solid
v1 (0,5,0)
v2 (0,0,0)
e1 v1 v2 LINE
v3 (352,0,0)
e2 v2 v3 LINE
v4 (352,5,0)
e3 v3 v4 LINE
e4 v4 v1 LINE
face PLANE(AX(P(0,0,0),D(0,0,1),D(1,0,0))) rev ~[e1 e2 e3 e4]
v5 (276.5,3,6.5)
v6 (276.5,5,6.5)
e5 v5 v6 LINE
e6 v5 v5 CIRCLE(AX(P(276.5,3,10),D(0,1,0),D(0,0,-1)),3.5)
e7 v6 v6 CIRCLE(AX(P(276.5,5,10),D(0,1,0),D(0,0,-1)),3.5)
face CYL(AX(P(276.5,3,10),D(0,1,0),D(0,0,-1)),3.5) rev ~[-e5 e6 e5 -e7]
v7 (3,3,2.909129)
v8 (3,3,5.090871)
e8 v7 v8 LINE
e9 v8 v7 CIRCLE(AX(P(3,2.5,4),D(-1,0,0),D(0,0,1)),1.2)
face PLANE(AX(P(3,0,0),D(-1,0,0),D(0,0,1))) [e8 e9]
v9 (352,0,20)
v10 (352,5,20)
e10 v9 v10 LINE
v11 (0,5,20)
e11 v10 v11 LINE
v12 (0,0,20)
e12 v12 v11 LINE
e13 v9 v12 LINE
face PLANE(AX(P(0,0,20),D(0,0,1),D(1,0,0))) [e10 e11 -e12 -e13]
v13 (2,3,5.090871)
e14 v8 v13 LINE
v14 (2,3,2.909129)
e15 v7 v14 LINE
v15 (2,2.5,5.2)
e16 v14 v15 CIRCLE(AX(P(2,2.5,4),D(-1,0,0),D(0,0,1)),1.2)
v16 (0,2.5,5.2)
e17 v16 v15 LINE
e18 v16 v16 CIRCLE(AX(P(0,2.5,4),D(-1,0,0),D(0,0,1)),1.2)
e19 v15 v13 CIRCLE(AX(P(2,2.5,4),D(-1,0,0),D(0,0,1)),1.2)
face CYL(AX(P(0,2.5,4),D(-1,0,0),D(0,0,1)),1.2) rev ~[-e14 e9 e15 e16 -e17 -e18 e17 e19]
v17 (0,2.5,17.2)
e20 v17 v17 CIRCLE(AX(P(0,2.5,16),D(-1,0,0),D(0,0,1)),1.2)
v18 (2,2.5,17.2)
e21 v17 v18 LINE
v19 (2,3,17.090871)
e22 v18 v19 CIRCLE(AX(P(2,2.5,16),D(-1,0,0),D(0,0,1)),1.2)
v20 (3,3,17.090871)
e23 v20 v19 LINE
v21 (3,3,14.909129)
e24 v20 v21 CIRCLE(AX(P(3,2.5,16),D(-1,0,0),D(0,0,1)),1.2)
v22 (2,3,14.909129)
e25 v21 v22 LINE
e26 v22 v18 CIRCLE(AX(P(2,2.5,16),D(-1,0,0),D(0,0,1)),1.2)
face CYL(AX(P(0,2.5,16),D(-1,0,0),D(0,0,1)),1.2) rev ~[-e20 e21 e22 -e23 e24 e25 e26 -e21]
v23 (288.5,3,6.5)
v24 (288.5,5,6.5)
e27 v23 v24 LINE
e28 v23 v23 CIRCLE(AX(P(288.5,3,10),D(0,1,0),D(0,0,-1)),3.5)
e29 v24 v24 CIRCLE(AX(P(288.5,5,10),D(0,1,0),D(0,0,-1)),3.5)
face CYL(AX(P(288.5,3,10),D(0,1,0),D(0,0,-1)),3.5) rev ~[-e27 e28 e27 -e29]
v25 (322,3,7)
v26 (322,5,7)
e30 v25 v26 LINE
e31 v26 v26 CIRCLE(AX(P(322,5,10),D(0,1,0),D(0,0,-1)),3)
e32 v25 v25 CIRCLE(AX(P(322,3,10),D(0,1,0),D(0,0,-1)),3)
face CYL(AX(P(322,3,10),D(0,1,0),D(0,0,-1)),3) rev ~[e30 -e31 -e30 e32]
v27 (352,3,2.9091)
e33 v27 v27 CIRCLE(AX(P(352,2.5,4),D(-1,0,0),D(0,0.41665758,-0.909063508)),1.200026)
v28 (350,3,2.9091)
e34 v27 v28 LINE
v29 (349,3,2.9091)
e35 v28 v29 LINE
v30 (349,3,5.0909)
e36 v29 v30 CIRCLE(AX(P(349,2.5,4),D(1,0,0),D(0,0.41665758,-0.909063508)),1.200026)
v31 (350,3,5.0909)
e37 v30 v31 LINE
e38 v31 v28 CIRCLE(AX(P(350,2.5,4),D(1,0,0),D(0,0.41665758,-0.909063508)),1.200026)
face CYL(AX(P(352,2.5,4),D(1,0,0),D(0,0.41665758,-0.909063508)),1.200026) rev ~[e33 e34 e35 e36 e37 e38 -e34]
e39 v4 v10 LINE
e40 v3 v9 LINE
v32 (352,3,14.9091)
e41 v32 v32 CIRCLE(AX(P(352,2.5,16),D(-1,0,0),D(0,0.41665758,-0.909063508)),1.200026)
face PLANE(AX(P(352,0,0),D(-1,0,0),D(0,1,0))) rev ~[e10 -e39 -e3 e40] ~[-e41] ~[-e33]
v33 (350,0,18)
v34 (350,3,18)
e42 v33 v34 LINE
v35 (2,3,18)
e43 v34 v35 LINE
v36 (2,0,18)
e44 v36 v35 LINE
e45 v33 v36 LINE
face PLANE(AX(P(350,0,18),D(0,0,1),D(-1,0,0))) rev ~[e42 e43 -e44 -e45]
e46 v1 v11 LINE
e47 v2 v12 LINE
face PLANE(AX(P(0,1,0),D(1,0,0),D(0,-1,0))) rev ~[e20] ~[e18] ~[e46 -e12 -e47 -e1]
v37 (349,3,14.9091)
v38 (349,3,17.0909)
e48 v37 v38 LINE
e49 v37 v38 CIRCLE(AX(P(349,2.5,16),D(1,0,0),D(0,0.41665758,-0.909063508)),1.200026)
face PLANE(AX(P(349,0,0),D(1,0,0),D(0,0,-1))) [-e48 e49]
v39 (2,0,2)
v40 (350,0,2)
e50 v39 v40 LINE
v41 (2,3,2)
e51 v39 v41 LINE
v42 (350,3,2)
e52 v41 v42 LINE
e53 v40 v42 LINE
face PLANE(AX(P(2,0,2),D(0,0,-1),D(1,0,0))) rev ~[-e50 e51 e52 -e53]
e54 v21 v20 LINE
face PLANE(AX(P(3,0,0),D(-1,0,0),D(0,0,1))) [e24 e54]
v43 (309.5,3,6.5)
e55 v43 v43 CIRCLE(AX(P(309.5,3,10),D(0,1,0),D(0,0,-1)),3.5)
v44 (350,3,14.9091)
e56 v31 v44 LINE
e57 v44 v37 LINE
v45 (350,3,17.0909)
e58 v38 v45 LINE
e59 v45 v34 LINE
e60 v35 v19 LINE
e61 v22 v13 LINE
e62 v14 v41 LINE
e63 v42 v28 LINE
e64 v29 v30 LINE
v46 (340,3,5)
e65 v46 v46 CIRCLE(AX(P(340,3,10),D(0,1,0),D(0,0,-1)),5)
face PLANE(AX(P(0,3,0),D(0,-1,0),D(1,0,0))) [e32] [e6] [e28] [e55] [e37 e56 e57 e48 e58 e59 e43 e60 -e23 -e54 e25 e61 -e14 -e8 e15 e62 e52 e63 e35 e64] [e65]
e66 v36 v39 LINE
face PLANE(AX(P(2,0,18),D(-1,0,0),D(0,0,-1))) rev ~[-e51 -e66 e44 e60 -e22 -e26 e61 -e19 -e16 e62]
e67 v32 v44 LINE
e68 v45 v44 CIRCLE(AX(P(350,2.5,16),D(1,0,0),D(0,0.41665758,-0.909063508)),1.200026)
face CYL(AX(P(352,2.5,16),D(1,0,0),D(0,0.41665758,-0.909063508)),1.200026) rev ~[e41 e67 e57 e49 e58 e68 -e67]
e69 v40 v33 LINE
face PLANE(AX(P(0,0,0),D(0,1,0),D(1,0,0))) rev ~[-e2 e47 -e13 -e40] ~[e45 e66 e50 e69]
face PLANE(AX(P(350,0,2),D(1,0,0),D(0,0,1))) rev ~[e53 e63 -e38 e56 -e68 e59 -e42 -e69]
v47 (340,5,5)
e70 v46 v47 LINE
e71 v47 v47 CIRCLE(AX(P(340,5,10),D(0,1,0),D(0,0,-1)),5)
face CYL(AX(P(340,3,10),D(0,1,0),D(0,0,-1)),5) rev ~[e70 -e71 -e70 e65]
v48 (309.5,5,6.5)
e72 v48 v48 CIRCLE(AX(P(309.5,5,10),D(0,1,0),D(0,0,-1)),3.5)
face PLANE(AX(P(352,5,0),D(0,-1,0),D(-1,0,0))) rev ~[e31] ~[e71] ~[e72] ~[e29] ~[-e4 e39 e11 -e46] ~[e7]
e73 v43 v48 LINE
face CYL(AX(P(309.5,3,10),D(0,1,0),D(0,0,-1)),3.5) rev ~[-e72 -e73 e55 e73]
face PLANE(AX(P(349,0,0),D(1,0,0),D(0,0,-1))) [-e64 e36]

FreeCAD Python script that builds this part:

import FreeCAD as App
import Part
import Sketcher
from FreeCAD import Vector


def add_polygon(sketch, points):
    """Adds a closed chain of lines whose ends are joined by coincident constraints."""
    first, n = sketch.GeometryCount, len(points)
    for a, b in zip(points, points[1:] + points[:1]):
        sketch.addGeometry(Part.LineSegment(App.Vector(*a, 0), App.Vector(*b, 0)), False)
    for i in range(n):
        sketch.addConstraint(Sketcher.Constraint("Coincident", first + i, 2, first + (i + 1) % n, 1))

doc = App.newDocument("Part")
body = doc.addObject("PartDesign::Body", "Body")

# Sketch on XY plane
sketch1 = doc.addObject("Sketcher::SketchObject", "Sketch")
body.addObject(sketch1)
sketch1.AttachmentSupport = (doc.XY_Plane, [""])
sketch1.MapMode = "FlatFace"
add_polygon(sketch1, [(0, 5), (0, 0), (352, 0), (352, 5)])  # lines 0-3
sketch1.addConstraint(Sketcher.Constraint("Vertical", 0))
sketch1.addConstraint(Sketcher.Constraint("Horizontal", 1))
sketch1.addConstraint(Sketcher.Constraint("Vertical", 2))
sketch1.addConstraint(Sketcher.Constraint("Horizontal", 3))
sketch1.addConstraint(Sketcher.Constraint("Coincident", 0, 2, -1, 1))
sketch1.addConstraint(Sketcher.Constraint("DistanceX", 1, 1, 1, 2, 352.0))
sketch1.addConstraint(Sketcher.Constraint("DistanceY", 0, 2, 0, 1, 5.0))
pad1 = doc.addObject("PartDesign::Pad", "Pad")
body.addObject(pad1)
pad1.Profile = sketch1
pad1.Length = 20

# Sketch on YZ plane
sketch2 = doc.addObject("Sketcher::SketchObject", "Sketch001")
body.addObject(sketch2)
sketch2.AttachmentSupport = (doc.YZ_Plane, [""])
sketch2.MapMode = "FlatFace"
sketch2.addGeometry(Part.Circle(Vector(2.5, 4, 0), Vector(0, 0, 1), 1.2), False)
sketch2.addGeometry(Part.Circle(Vector(2.5, 16, 0), Vector(0, 0, 1), 1.2), False)
sketch2.addConstraint(Sketcher.Constraint("Equal", 0, 1))
sketch2.addConstraint(Sketcher.Constraint("Vertical", 0, 3, 1, 3))
sketch2.addConstraint(Sketcher.Constraint("Diameter", 0, 2.4))
sketch2.addConstraint(Sketcher.Constraint("DistanceY", -1, 1, 0, 3, 4.0))
sketch2.addConstraint(Sketcher.Constraint("DistanceX", -1, 1, 0, 3, 2.5))
sketch2.addConstraint(Sketcher.Constraint("DistanceY", -1, 1, 1, 3, 16.0))
pocket1 = doc.addObject("PartDesign::Pocket", "Pocket")
body.addObject(pocket1)
pocket1.Profile = sketch2
pocket1.Length = 3
pocket1.Reversed = True

# Sketch on XZ plane
sketch3 = doc.addObject("Sketcher::SketchObject", "Sketch002")
body.addObject(sketch3)
sketch3.AttachmentSupport = (doc.XZ_Plane, [""])
sketch3.MapMode = "FlatFace"
add_polygon(sketch3, [(2, 18), (2, 2), (350, 2), (350, 18)])  # lines 0-3
sketch3.addConstraint(Sketcher.Constraint("Vertical", 0))
sketch3.addConstraint(Sketcher.Constraint("Horizontal", 1))
sketch3.addConstraint(Sketcher.Constraint("Vertical", 2))
sketch3.addConstraint(Sketcher.Constraint("Horizontal", 3))
sketch3.addConstraint(Sketcher.Constraint("DistanceX", -1, 1, 0, 2, 2.0))
sketch3.addConstraint(Sketcher.Constraint("DistanceY", -1, 1, 0, 2, 2.0))
sketch3.addConstraint(Sketcher.Constraint("DistanceX", 1, 1, 1, 2, 348.0))
sketch3.addConstraint(Sketcher.Constraint("DistanceY", 0, 2, 0, 1, 16.0))
pocket2 = doc.addObject("PartDesign::Pocket", "Pocket001")
body.addObject(pocket2)
pocket2.Profile = sketch3
pocket2.Length = 3

# Sketch on XZ plane
sketch4 = doc.addObject("Sketcher::SketchObject", "Sketch003")
body.addObject(sketch4)
sketch4.AttachmentSupport = (doc.XZ_Plane, [""])
sketch4.MapMode = "FlatFace"
sketch4.AttachmentOffset = App.Placement(Vector(0, 0, -3), App.Rotation())
sketch4.addGeometry(Part.Circle(Vector(340, 10, 0), Vector(0, 0, 1), 5), False)
sketch4.addConstraint(Sketcher.Constraint("Diameter", 0, 10.0))
sketch4.addConstraint(Sketcher.Constraint("DistanceX", -1, 1, 0, 3, 340.0))
sketch4.addConstraint(Sketcher.Constraint("DistanceY", -1, 1, 0, 3, 10.0))
doc.recompute()
hole = doc.addObject("PartDesign::Hole", "Hole")
body.addObject(hole)
hole.Profile = sketch4
hole.ThreadType = "None"
hole.Diameter = 10
hole.DepthType = "ThroughAll"

# Sketch on XZ plane
sketch5 = doc.addObject("Sketcher::SketchObject", "Sketch004")
body.addObject(sketch5)
sketch5.AttachmentSupport = (doc.XZ_Plane, [""])
sketch5.MapMode = "FlatFace"
sketch5.AttachmentOffset = App.Placement(Vector(0, 0, -3), App.Rotation())
sketch5.addGeometry(Part.Circle(Vector(322, 10, 0), Vector(0, 0, 1), 3), False)
sketch5.addConstraint(Sketcher.Constraint("Diameter", 0, 6.0))
sketch5.addConstraint(Sketcher.Constraint("DistanceX", -1, 1, 0, 3, 322.0))
sketch5.addConstraint(Sketcher.Constraint("DistanceY", -1, 1, 0, 3, 10.0))
doc.recompute()
hole2 = doc.addObject("PartDesign::Hole", "Hole001")
body.addObject(hole2)
hole2.Profile = sketch5
hole2.ThreadType = "None"
hole2.Diameter = 6
hole2.DepthType = "ThroughAll"

# Sketch on XZ plane
sketch6 = doc.addObject("Sketcher::SketchObject", "Sketch005")
body.addObject(sketch6)
sketch6.AttachmentSupport = (doc.XZ_Plane, [""])
sketch6.MapMode = "FlatFace"
sketch6.AttachmentOffset = App.Placement(Vector(0, 0, -3), App.Rotation())
sketch6.addGeometry(Part.Circle(Vector(309.5, 10, 0), Vector(0, 0, 1), 3.5), False)
sketch6.addConstraint(Sketcher.Constraint("Diameter", 0, 7.0))
sketch6.addConstraint(Sketcher.Constraint("DistanceY", -1, 1, 0, 3, 10.0))
sketch6.addConstraint(Sketcher.Constraint("DistanceX", -1, 1, 0, 3, 309.5))
doc.recompute()
hole3 = doc.addObject("PartDesign::Hole", "Hole002")
body.addObject(hole3)
hole3.Profile = sketch6
hole3.ThreadType = "None"
hole3.Diameter = 7
hole3.DepthType = "ThroughAll"

# Sketch on XZ plane
sketch7 = doc.addObject("Sketcher::SketchObject", "Sketch006")
body.addObject(sketch7)
sketch7.AttachmentSupport = (doc.XZ_Plane, [""])
sketch7.MapMode = "FlatFace"
sketch7.AttachmentOffset = App.Placement(Vector(0, 0, -3), App.Rotation())
sketch7.addGeometry(Part.Circle(Vector(288.5, 10, 0), Vector(0, 0, 1), 3.5), False)
sketch7.addConstraint(Sketcher.Constraint("Diameter", 0, 7.0))
sketch7.addConstraint(Sketcher.Constraint("DistanceY", -1, 1, 0, 3, 10.0))
sketch7.addConstraint(Sketcher.Constraint("DistanceX", -1, 1, 0, 3, 288.5))
doc.recompute()
hole4 = doc.addObject("PartDesign::Hole", "Hole003")
body.addObject(hole4)
hole4.Profile = sketch7
hole4.ThreadType = "None"
hole4.Diameter = 7
hole4.DepthType = "ThroughAll"

# Sketch on XZ plane
sketch8 = doc.addObject("Sketcher::SketchObject", "Sketch007")
body.addObject(sketch8)
sketch8.AttachmentSupport = (doc.XZ_Plane, [""])
sketch8.MapMode = "FlatFace"
sketch8.AttachmentOffset = App.Placement(Vector(0, 0, -3), App.Rotation())
sketch8.addGeometry(Part.Circle(Vector(276.5, 10, 0), Vector(0, 0, 1), 3.5), False)
sketch8.addConstraint(Sketcher.Constraint("Diameter", 0, 7.0))
sketch8.addConstraint(Sketcher.Constraint("DistanceY", -1, 1, 0, 3, 10.0))
sketch8.addConstraint(Sketcher.Constraint("DistanceX", -1, 1, 0, 3, 276.5))
doc.recompute()
hole5 = doc.addObject("PartDesign::Hole", "Hole004")
body.addObject(hole5)
hole5.Profile = sketch8
hole5.ThreadType = "None"
hole5.Diameter = 7
hole5.DepthType = "ThroughAll"

# Sketch on YZ plane
sketch9 = doc.addObject("Sketcher::SketchObject", "Sketch008")
body.addObject(sketch9)
sketch9.AttachmentSupport = (doc.YZ_Plane, [""])
sketch9.MapMode = "FlatFace"
sketch9.AttachmentOffset = App.Placement(Vector(0, 0, 352), App.Rotation())
sketch9.addGeometry(Part.Circle(Vector(2.5, 4, 0), Vector(0, 0, 1), 1.2), False)
sketch9.addGeometry(Part.Circle(Vector(2.5, 16, 0), Vector(0, 0, 1), 1.2), False)
sketch9.addConstraint(Sketcher.Constraint("Equal", 0, 1))
sketch9.addConstraint(Sketcher.Constraint("Vertical", 0, 3, 1, 3))
sketch9.addConstraint(Sketcher.Constraint("Diameter", 0, 2.4))
sketch9.addConstraint(Sketcher.Constraint("DistanceY", -1, 1, 0, 3, 4.0))
sketch9.addConstraint(Sketcher.Constraint("DistanceY", -1, 1, 1, 3, 16.0))
sketch9.addConstraint(Sketcher.Constraint("DistanceX", -1, 1, 0, 3, 2.5))
pocket3 = doc.addObject("PartDesign::Pocket", "Pocket002")
body.addObject(pocket3)
pocket3.Profile = sketch9
pocket3.Length = 3

doc.recompute()
